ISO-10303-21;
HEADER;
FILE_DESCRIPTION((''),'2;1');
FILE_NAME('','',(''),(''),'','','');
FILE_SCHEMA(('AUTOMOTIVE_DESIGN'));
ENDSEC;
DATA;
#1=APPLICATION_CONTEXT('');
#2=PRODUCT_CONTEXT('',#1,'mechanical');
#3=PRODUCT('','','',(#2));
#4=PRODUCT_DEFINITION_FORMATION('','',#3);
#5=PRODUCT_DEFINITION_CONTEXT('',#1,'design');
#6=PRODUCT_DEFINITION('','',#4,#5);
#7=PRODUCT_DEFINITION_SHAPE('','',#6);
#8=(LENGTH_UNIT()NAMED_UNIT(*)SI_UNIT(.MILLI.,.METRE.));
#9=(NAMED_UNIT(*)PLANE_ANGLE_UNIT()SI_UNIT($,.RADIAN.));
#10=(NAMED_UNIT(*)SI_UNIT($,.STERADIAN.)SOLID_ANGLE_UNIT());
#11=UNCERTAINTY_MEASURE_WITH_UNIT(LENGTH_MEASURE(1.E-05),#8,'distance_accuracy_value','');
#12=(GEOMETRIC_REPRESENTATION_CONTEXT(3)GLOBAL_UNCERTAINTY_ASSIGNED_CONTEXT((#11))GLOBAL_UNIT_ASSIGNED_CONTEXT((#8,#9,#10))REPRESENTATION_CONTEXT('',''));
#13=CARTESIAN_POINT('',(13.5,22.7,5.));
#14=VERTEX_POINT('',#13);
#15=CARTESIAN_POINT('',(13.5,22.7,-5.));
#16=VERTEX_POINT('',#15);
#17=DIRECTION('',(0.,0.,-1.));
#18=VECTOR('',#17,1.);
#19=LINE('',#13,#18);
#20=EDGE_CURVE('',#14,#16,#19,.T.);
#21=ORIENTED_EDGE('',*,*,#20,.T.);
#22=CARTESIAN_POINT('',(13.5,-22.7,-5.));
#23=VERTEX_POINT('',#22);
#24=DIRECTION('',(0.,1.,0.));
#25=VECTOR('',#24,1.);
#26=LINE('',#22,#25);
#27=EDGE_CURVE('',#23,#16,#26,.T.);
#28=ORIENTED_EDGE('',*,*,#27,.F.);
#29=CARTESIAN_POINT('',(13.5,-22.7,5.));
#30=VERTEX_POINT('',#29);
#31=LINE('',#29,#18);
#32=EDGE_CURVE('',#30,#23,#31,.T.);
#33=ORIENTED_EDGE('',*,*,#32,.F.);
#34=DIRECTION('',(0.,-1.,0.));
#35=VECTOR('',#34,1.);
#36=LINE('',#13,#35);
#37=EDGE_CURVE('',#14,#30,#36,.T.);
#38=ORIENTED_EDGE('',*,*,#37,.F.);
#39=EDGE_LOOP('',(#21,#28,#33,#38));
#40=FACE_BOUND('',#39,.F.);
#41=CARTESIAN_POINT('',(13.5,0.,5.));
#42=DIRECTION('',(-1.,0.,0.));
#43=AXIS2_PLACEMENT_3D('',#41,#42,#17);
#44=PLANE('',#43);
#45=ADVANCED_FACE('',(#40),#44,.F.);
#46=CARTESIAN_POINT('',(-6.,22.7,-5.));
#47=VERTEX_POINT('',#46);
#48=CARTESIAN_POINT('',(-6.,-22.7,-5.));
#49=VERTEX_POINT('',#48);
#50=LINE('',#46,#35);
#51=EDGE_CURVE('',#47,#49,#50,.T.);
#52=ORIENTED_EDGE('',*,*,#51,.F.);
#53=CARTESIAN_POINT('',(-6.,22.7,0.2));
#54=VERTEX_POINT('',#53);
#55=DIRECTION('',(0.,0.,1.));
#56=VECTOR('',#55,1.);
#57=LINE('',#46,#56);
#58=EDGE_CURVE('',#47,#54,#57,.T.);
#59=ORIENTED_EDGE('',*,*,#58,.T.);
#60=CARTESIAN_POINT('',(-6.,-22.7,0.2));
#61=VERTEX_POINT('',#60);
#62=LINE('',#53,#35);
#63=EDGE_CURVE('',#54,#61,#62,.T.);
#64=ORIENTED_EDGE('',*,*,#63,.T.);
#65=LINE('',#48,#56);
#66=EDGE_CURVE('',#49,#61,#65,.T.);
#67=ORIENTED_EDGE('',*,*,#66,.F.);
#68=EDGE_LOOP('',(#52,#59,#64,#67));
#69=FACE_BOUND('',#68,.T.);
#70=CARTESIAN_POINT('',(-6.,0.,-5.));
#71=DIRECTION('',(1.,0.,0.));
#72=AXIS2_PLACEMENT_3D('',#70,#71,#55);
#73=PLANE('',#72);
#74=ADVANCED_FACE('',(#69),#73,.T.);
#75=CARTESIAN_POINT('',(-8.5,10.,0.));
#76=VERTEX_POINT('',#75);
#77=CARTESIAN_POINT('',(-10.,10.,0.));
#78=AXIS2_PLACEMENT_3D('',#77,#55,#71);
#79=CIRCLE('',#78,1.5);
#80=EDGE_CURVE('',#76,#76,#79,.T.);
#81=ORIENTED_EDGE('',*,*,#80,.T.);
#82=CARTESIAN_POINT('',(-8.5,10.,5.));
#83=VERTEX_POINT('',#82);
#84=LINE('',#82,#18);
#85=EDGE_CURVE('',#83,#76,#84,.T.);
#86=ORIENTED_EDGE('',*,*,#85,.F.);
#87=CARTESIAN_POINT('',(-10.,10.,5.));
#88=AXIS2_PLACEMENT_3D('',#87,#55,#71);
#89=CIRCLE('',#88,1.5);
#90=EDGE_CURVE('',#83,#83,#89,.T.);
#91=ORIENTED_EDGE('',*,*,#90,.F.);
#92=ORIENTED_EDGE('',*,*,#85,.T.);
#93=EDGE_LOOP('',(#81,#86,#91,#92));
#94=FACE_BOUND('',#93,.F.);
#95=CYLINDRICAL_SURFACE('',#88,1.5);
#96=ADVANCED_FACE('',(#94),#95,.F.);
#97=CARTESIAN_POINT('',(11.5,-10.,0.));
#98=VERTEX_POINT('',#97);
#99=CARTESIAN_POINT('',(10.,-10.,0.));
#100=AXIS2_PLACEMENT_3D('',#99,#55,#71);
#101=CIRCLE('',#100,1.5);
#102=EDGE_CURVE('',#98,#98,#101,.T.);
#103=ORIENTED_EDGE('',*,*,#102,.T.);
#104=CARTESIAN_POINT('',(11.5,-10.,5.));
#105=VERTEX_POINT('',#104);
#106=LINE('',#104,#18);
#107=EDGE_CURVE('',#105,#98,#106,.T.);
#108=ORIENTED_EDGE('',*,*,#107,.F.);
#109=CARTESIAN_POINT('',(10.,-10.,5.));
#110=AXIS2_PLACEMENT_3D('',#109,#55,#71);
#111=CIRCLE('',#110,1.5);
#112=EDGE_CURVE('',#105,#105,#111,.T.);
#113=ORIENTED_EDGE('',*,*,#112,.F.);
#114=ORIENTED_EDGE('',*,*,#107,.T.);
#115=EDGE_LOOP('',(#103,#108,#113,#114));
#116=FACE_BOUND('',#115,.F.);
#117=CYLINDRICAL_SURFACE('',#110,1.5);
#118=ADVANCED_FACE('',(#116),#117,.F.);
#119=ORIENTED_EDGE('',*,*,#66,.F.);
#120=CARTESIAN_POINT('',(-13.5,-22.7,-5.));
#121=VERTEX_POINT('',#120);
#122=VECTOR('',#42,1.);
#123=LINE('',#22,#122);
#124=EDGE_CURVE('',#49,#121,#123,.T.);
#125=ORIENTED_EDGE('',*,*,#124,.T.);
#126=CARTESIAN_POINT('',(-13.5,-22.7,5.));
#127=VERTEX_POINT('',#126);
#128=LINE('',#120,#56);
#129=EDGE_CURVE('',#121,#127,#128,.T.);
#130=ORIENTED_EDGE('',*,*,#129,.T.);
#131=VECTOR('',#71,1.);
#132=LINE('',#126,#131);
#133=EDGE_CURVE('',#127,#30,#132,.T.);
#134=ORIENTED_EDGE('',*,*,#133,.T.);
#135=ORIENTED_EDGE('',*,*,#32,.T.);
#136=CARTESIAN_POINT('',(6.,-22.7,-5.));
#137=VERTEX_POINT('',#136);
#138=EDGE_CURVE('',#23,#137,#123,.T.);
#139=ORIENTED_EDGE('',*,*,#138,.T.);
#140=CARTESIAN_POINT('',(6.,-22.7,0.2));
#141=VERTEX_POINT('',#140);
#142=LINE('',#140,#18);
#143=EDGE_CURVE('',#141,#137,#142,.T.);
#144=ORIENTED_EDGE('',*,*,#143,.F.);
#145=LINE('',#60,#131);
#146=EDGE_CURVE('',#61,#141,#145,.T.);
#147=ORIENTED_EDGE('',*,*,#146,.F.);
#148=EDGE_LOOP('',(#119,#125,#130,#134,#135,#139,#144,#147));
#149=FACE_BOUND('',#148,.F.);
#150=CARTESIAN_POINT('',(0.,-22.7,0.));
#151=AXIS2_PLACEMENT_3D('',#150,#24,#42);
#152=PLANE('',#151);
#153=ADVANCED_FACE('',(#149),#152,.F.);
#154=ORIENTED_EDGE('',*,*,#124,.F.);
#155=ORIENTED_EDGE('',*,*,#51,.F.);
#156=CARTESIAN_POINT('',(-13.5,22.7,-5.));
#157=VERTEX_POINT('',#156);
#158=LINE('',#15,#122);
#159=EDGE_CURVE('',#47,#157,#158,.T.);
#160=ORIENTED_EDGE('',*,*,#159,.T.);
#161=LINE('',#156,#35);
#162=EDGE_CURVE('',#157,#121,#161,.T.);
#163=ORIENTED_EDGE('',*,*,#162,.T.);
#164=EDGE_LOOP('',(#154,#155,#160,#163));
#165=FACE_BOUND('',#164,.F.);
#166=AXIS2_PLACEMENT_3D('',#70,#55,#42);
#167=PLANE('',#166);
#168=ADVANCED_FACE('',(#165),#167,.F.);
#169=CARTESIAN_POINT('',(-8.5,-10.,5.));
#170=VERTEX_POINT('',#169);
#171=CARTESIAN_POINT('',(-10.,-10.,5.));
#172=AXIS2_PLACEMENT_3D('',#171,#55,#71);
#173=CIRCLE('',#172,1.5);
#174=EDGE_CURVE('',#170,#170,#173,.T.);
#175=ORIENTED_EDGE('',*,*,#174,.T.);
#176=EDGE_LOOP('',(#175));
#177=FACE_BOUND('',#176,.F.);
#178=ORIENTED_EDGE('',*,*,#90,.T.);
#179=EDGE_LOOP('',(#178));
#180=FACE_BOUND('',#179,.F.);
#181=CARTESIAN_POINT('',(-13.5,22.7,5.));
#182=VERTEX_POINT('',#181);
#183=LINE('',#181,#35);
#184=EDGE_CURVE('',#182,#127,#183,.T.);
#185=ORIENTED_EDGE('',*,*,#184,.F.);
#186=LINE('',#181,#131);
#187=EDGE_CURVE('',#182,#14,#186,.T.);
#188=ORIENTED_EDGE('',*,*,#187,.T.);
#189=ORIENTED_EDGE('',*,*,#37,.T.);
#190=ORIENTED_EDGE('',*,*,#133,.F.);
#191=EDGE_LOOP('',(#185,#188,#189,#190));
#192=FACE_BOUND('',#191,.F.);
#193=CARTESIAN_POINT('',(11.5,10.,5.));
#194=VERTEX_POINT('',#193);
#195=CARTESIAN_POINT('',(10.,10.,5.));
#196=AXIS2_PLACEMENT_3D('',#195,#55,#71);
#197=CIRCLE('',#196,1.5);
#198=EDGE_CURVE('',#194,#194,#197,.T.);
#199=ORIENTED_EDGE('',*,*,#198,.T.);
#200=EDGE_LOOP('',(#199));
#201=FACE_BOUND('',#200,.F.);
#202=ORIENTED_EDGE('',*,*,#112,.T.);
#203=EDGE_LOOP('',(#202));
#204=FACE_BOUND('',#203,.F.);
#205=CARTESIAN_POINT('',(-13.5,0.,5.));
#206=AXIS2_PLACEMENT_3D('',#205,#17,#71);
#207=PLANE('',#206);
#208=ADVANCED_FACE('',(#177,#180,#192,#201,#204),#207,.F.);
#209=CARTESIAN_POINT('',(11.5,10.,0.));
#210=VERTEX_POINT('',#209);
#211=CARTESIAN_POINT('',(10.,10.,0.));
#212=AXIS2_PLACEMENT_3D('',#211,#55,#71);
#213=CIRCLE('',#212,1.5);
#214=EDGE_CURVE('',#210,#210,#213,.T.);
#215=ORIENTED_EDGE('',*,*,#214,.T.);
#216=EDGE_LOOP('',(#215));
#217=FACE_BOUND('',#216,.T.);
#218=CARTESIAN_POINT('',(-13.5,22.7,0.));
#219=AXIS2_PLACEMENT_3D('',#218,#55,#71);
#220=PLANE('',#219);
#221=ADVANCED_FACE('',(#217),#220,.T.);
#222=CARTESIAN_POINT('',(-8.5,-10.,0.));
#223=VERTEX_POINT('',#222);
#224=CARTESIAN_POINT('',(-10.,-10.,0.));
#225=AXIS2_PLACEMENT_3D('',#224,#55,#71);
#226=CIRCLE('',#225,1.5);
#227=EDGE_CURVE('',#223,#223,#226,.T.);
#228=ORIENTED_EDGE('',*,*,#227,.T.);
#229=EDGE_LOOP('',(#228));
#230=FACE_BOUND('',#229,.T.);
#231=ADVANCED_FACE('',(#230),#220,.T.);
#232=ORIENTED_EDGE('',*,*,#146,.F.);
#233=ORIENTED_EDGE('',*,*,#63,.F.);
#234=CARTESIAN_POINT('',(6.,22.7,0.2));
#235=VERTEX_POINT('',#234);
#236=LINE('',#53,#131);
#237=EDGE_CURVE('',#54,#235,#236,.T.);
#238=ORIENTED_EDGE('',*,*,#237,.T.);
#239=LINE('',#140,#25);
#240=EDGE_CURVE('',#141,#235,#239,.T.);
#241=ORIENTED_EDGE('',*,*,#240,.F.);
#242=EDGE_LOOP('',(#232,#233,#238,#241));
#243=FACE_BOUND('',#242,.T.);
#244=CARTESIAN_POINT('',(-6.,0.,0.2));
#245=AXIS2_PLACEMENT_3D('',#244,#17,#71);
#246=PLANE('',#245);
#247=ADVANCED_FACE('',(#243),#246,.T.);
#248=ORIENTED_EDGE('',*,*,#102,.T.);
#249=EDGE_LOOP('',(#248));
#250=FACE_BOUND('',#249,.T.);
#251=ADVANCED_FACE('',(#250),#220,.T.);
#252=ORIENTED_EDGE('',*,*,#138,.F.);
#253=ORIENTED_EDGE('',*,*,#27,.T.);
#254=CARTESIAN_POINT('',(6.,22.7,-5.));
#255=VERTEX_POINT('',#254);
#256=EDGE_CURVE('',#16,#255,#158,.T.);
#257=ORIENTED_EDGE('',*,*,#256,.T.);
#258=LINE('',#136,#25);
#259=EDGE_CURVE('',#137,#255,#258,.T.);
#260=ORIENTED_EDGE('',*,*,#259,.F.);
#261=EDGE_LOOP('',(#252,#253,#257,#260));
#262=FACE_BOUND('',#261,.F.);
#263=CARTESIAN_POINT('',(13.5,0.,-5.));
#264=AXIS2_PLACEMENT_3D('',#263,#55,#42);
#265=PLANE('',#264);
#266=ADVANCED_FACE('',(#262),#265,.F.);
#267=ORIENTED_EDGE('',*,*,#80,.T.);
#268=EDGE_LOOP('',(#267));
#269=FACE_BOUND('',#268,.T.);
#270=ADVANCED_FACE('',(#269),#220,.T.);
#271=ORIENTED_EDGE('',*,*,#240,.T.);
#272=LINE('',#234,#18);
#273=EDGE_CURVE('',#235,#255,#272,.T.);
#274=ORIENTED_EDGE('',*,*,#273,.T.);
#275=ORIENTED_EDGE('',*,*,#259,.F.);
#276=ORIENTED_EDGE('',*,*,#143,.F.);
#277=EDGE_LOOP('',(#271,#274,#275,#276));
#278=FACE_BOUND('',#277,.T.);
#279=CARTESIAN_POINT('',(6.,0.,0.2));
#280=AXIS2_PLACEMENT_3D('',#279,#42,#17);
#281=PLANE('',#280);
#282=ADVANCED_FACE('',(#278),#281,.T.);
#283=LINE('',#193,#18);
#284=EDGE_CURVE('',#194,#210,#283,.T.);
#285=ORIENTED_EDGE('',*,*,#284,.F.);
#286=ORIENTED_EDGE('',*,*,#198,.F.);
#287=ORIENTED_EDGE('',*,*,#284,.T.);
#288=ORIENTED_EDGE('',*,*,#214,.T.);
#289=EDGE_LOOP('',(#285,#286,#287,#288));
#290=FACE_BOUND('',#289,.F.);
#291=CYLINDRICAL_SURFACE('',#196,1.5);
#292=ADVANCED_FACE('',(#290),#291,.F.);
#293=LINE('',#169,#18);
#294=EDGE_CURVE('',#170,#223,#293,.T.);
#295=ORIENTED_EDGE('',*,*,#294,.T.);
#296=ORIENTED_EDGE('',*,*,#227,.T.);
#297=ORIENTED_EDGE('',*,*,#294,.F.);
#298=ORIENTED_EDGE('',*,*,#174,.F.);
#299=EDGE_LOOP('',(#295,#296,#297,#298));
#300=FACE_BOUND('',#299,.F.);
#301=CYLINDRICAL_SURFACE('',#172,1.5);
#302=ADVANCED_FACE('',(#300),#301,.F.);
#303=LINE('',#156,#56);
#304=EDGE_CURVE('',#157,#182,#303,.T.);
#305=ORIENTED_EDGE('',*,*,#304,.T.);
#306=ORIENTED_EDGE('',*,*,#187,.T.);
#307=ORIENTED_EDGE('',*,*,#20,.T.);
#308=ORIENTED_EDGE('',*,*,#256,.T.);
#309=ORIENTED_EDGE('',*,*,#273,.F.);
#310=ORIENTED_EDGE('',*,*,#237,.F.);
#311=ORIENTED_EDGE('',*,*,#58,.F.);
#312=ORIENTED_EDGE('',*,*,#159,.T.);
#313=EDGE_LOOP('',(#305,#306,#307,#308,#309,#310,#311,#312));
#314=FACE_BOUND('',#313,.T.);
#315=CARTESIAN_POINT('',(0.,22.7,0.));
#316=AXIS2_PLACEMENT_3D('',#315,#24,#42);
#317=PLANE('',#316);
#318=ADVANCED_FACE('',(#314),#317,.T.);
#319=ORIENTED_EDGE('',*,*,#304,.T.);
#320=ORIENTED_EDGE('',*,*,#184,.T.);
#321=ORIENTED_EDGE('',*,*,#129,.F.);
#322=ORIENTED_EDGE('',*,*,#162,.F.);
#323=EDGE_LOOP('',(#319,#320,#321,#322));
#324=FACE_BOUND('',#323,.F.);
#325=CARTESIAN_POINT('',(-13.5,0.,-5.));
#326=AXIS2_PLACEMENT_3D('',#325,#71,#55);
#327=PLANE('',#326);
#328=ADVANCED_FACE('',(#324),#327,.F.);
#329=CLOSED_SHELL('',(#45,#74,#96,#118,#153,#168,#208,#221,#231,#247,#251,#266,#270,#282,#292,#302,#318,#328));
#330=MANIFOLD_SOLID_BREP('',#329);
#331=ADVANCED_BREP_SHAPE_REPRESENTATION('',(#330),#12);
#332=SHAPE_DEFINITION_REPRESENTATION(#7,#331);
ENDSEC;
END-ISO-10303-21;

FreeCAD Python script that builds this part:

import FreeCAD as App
import Part
import Sketcher

V = App.Vector

doc = App.newDocument("Part")
body = doc.addObject("PartDesign::Body", "Body")

# Sketch on XZ plane
sketch1 = doc.addObject("Sketcher::SketchObject", "Sketch")
body.addObject(sketch1)
sketch1.AttachmentSupport = (doc.XZ_Plane, [""])
sketch1.MapMode = "FlatFace"
sketch1.addGeometry([
    Part.LineSegment(V(13.5, 5, 0), V(13.5, -5, 0)),  # 0
    Part.LineSegment(V(13.5, -5, 0), V(6, -5, 0)),  # 1
    Part.LineSegment(V(6, -5, 0), V(6, 0.2, 0)),  # 2
    Part.LineSegment(V(6, 0.2, 0), V(-6, 0.2, 0)),  # 3
    Part.LineSegment(V(-6, 0.2, 0), V(-6, -5, 0)),  # 4
    Part.LineSegment(V(-6, -5, 0), V(-13.5, -5, 0)),  # 5
    Part.LineSegment(V(-13.5, -5, 0), V(-13.5, 5, 0)),  # 6
    Part.LineSegment(V(-13.5, 5, 0), V(13.5, 5, 0)),  # 7
], False)
sketch1.addConstraint([
    Sketcher.Constraint("Coincident", 0, 2, 1, 1),
    Sketcher.Constraint("Coincident", 1, 2, 2, 1),
    Sketcher.Constraint("Coincident", 2, 2, 3, 1),
    Sketcher.Constraint("Coincident", 3, 2, 4, 1),
    Sketcher.Constraint("Coincident", 4, 2, 5, 1),
    Sketcher.Constraint("Coincident", 5, 2, 6, 1),
    Sketcher.Constraint("Coincident", 6, 2, 7, 1),
    Sketcher.Constraint("Coincident", 7, 2, 0, 1),
    Sketcher.Constraint("Vertical", 0),
    Sketcher.Constraint("Horizontal", 1),
    Sketcher.Constraint("Vertical", 2),
    Sketcher.Constraint("Horizontal", 3),
    Sketcher.Constraint("Vertical", 4),
    Sketcher.Constraint("Horizontal", 5),
    Sketcher.Constraint("Vertical", 6),
    Sketcher.Constraint("Horizontal", 7),
    Sketcher.Constraint("Symmetric", 0, 2, 6, 2, -1, 1),
    Sketcher.Constraint("Symmetric", 1, 2, 4, 2, -2),
    Sketcher.Constraint("DistanceX", 3, 2, 3, 1, 12.0),
    Sketcher.Constraint("DistanceX", 7, 1, 7, 2, 27.0),
    Sketcher.Constraint("DistanceY", 0, 2, 0, 1, 10.0),
    Sketcher.Constraint("DistanceY", 2, 1, 2, 2, 5.2),
])
pad1 = doc.addObject("PartDesign::Pad", "Pad")
body.addObject(pad1)
pad1.Profile = sketch1
pad1.Length = 45.4
pad1.Midplane = True

# Sketch on XY plane
sketch2 = doc.addObject("Sketcher::SketchObject", "Sketch001")
body.addObject(sketch2)
sketch2.AttachmentSupport = (doc.XY_Plane, [""])
sketch2.MapMode = "FlatFace"
sketch2.AttachmentOffset = App.Placement(V(0, 0, 5), App.Rotation())
sketch2.addGeometry([
    Part.Circle(V(-10, 10, 0), V(0, 0, 1), 1.5),
    Part.Circle(V(-10, -10, 0), V(0, 0, 1), 1.5),
    Part.Circle(V(10, 10, 0), V(0, 0, 1), 1.5),
    Part.Circle(V(10, -10, 0), V(0, 0, 1), 1.5),
], False)
sketch2.addConstraint([
    Sketcher.Constraint("Equal", 0, 1),
    Sketcher.Constraint("Equal", 1, 2),
    Sketcher.Constraint("Equal", 2, 3),
    Sketcher.Constraint("Symmetric", 1, 3, 2, 3, -1, 1),
    Sketcher.Constraint("Symmetric", 0, 3, 3, 3, -1, 1),
    Sketcher.Constraint("Symmetric", 0, 3, 2, 3, -2),
    Sketcher.Constraint("Diameter", 0, 3.0),
    Sketcher.Constraint("DistanceY", 1, 3, 0, 3, 20.0),
    Sketcher.Constraint("DistanceX", 0, 3, 2, 3, 20.0),
])
pocket1 = doc.addObject("PartDesign::Pocket", "Pocket")
body.addObject(pocket1)
pocket1.Profile = sketch2
pocket1.Length = 5

doc.recompute()
